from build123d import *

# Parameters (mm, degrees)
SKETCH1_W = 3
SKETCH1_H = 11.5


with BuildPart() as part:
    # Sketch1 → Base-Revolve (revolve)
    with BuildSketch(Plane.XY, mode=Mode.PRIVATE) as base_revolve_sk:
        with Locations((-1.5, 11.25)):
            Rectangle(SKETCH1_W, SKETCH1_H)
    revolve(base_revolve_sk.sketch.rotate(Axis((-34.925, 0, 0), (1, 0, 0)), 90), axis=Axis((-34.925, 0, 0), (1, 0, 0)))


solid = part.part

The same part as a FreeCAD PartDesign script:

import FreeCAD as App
import Part
import Sketcher
Q = App.Units.Quantity


def add_polygon(sketch, points):
    """Adds a closed chain of lines whose ends are joined by coincident constraints."""
    first, n = sketch.GeometryCount, len(points)
    for a, b in zip(points, points[1:] + points[:1]):
        sketch.addGeometry(Part.LineSegment(App.Vector(*a, 0), App.Vector(*b, 0)), False)
    for i in range(n):
        sketch.addConstraint(Sketcher.Constraint("Coincident", first + i, 2, first + (i + 1) % n, 1))

doc = App.newDocument("Part")
body = doc.addObject("PartDesign::Body", "Body")

# Sketch on XY plane
sketch1 = body.newObject("Sketcher::SketchObject", "Sketch")
sketch1.AttachmentSupport = (doc.getObject("XY_Plane"), [""])
sketch1.MapMode = "FlatFace"
add_polygon(sketch1, [(-3, 17), (-3, 5.5), (0, 5.5), (0, 17)])  # lines 0-3
sketch1.addConstraint([
    Sketcher.Constraint("Vertical", 0),
    Sketcher.Constraint("Horizontal", 1),
    Sketcher.Constraint("Vertical", 2),
    Sketcher.Constraint("Horizontal", 3),
    Sketcher.Constraint("PointOnObject", 1, 2, -2),
    Sketcher.Constraint("DistanceX", 1, 1, 1, 2, Q("3 mm")),
    Sketcher.Constraint("DistanceY", 0, 2, 0, 1, Q("11.5 mm")),
    Sketcher.Constraint("DistanceY", -1, 1, 2, 2, Q("17 mm")),
])
revolution = body.newObject("PartDesign::Revolution", "Revolution")
revolution.Profile = sketch1
revolution.ReferenceAxis = (sketch1, ["H_Axis"])
revolution.Angle = 360

doc.recompute()
